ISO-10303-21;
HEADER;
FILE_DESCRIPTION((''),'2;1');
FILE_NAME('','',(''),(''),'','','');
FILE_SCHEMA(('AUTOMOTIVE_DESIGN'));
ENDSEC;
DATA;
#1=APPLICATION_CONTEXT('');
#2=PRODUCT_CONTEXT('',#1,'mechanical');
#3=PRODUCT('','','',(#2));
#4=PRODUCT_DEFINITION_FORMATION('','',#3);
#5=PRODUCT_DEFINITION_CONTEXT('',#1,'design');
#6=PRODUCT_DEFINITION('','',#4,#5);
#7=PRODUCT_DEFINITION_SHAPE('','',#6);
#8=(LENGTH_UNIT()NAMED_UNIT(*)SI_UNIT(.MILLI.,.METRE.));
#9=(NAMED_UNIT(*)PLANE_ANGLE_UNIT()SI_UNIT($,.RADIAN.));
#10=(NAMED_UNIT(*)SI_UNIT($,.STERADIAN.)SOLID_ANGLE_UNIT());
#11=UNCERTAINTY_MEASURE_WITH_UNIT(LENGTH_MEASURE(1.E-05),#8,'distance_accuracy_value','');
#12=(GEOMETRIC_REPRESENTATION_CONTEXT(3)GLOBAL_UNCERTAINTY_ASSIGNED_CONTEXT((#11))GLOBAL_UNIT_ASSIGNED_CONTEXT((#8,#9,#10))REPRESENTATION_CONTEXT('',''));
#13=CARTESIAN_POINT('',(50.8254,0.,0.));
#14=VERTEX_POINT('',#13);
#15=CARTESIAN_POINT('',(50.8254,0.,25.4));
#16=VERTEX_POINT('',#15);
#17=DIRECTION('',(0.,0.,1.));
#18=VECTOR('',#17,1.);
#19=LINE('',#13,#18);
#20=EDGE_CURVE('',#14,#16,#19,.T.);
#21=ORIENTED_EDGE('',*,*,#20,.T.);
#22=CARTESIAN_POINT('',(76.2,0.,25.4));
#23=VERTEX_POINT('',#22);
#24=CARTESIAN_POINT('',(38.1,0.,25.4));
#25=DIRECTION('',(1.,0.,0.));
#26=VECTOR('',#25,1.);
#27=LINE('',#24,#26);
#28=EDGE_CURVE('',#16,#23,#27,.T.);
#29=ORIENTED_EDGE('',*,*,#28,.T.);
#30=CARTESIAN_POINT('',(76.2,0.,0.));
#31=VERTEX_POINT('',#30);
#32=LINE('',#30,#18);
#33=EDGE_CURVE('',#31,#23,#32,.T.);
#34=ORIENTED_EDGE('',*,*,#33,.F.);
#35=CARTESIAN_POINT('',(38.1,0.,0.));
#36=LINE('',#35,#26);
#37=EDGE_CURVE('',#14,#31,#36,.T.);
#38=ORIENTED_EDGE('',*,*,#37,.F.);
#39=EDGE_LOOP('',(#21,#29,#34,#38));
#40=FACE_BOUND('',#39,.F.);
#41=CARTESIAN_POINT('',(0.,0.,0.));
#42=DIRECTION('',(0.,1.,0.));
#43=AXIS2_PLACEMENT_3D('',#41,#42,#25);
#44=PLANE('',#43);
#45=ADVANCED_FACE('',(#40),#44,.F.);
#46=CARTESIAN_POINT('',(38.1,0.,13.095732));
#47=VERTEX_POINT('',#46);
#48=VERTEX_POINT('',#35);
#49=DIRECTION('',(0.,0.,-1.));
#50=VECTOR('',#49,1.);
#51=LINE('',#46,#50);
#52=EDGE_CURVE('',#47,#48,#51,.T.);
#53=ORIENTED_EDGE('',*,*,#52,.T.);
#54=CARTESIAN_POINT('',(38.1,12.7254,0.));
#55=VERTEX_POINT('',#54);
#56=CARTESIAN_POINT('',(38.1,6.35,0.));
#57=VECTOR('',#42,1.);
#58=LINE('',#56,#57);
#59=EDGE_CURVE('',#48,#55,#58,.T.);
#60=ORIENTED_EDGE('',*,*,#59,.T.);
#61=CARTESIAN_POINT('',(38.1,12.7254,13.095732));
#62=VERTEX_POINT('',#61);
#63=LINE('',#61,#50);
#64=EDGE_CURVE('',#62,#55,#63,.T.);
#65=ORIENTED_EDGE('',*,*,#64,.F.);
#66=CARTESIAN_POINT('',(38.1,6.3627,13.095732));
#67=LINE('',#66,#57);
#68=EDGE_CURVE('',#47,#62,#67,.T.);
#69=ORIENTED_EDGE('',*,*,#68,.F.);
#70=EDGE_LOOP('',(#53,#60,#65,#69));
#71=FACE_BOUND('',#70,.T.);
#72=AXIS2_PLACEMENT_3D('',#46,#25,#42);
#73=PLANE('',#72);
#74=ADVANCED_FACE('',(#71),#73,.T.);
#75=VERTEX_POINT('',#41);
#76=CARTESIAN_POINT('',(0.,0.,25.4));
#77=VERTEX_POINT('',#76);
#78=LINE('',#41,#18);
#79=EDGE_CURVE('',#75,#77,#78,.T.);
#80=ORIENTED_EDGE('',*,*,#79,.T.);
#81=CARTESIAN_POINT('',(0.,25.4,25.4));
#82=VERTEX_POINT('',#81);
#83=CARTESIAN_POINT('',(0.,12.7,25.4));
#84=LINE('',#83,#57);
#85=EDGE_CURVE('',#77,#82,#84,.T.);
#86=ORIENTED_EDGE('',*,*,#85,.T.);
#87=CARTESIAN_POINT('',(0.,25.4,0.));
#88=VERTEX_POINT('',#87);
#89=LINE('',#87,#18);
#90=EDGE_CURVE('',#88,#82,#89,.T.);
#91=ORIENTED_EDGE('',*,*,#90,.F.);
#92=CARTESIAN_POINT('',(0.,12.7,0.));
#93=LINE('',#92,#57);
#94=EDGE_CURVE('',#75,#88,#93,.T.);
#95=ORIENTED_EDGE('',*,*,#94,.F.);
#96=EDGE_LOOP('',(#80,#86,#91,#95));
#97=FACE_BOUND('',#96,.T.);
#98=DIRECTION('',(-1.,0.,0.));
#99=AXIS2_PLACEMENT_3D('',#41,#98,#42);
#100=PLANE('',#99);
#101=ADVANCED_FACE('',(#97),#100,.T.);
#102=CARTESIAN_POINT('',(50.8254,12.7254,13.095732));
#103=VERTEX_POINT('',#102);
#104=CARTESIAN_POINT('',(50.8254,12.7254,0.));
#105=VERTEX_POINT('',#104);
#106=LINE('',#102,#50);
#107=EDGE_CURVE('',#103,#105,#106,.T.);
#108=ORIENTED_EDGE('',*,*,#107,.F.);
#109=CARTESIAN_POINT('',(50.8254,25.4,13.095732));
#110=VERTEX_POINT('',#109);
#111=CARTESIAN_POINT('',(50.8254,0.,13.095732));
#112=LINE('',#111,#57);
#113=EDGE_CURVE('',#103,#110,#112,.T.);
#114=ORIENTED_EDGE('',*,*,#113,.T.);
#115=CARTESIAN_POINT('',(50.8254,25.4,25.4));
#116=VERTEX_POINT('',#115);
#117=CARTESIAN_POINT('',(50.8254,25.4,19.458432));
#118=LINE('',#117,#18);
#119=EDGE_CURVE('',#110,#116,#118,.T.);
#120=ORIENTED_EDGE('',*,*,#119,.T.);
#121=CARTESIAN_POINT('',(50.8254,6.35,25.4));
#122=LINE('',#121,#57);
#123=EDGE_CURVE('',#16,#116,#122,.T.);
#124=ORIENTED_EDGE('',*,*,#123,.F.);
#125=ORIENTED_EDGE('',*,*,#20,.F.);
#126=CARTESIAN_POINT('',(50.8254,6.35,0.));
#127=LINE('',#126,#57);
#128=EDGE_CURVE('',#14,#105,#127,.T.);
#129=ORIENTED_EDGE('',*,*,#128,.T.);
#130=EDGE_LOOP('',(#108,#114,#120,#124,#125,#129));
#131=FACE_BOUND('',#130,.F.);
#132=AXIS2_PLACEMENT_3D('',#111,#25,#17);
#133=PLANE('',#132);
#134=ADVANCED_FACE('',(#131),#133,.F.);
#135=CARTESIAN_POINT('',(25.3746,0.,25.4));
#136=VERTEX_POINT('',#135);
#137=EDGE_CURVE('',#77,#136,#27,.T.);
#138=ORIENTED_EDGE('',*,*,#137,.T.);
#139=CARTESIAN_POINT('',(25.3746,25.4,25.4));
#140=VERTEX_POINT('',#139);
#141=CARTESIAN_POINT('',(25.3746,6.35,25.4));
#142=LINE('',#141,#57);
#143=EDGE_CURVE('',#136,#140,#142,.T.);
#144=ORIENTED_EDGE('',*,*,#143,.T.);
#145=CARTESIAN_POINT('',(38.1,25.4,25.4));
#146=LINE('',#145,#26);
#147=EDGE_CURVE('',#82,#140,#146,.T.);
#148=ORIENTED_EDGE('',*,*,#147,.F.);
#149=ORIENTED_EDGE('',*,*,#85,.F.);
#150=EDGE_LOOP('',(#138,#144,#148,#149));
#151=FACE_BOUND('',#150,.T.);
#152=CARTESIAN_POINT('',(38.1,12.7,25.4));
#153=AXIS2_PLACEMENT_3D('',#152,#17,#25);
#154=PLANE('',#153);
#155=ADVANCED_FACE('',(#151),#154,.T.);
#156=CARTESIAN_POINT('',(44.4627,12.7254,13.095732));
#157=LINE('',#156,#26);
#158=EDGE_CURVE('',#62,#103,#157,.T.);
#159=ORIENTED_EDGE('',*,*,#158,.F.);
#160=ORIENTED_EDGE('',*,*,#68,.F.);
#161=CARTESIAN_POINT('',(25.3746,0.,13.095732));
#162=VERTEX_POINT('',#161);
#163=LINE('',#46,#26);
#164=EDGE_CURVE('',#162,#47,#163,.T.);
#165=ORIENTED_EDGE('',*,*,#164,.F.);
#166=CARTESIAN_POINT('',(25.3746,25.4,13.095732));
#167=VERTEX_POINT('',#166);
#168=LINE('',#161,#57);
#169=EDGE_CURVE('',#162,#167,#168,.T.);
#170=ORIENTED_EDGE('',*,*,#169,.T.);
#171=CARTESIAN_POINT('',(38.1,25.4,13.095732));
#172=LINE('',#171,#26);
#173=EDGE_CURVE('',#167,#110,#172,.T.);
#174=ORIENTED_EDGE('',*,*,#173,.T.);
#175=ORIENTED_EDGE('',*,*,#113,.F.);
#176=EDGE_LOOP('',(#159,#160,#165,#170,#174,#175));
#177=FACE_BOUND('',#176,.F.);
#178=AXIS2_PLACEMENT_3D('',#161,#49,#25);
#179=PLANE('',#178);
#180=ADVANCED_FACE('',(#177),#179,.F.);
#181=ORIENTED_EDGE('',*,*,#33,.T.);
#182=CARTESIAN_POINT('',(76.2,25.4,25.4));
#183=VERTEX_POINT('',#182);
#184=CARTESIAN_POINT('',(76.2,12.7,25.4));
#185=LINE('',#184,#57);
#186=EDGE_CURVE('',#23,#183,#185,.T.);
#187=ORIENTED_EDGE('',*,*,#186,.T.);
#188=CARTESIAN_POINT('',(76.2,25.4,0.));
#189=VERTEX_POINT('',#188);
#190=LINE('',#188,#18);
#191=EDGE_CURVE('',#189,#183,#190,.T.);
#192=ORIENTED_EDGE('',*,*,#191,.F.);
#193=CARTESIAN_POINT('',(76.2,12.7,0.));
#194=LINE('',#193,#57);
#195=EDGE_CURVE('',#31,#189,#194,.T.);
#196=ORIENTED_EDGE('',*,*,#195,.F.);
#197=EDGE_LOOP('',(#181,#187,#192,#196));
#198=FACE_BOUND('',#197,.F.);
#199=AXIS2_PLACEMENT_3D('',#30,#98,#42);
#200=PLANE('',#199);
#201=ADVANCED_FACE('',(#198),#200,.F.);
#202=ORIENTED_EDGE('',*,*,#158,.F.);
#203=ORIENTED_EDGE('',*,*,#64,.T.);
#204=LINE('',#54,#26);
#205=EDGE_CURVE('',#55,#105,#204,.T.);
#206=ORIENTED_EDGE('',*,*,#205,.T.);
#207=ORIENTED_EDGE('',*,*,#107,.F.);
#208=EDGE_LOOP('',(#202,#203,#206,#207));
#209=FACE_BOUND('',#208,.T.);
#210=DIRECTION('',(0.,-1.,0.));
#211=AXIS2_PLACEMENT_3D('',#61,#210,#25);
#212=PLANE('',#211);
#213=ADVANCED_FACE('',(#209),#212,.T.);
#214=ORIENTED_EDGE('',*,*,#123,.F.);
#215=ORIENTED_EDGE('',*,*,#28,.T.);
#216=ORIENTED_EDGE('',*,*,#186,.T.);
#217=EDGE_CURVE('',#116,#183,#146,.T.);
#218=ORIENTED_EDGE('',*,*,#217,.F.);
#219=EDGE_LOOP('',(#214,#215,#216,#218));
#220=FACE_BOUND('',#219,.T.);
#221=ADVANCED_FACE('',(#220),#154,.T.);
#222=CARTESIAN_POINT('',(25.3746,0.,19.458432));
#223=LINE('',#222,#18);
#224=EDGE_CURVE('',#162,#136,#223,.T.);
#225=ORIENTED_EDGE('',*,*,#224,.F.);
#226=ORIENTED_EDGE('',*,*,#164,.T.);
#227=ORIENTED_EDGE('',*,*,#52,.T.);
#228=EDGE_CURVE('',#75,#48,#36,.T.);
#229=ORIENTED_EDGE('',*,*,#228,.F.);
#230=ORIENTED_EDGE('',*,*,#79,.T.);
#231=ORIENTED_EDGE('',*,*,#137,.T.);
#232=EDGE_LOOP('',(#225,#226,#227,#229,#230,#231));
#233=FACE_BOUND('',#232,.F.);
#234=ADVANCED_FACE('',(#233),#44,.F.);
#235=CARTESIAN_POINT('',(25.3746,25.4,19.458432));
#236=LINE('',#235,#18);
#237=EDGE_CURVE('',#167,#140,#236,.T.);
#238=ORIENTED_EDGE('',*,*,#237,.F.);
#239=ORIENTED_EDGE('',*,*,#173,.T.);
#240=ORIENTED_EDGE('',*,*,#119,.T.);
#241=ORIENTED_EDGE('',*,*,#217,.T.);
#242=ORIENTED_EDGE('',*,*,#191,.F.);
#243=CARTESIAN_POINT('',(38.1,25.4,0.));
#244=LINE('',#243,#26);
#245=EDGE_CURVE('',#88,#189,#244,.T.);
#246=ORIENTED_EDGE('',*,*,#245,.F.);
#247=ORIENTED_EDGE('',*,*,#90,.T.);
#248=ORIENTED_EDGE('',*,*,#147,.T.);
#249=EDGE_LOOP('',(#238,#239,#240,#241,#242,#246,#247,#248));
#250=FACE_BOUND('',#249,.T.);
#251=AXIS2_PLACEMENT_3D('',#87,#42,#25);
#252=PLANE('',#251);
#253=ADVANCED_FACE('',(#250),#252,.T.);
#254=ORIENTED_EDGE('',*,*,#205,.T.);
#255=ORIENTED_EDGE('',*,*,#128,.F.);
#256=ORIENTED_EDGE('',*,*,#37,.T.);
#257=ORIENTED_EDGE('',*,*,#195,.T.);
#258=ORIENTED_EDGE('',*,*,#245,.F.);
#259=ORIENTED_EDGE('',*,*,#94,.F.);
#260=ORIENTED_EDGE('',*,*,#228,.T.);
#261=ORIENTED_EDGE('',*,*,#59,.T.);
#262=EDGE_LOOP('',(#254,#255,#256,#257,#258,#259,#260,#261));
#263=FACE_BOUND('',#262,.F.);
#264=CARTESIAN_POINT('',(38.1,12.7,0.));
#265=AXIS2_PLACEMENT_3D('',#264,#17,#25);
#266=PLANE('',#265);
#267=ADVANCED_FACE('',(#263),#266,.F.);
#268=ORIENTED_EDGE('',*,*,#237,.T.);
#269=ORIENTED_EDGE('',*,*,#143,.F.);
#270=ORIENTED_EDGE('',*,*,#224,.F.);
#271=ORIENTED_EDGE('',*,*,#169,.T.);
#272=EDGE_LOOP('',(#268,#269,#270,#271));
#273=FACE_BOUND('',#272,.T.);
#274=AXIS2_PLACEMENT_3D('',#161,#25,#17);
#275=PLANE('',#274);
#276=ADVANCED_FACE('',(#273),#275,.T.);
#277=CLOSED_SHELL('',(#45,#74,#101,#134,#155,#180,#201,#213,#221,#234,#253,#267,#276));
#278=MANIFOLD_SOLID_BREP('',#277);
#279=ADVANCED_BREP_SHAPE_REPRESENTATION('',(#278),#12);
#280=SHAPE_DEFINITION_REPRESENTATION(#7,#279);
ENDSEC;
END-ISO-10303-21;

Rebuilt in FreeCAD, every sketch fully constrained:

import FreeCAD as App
import Part
import Sketcher
Q = App.Units.Quantity

doc = App.newDocument("Part")
body = doc.addObject("PartDesign::Body", "Body")

# Sketch on XY plane
sketch1 = doc.addObject("Sketcher::SketchObject", "Sketch")
body.addObject(sketch1)
sketch1.AttachmentSupport = (doc.XY_Plane, [""])
sketch1.MapMode = "FlatFace"
sketch1.addGeometry([
    Part.LineSegment(App.Vector(0, 25, 0), App.Vector(0, 0, 0)),
    Part.LineSegment(App.Vector(0, 0, 0), App.Vector(76, 0, 0)),
    Part.LineSegment(App.Vector(76, 0, 0), App.Vector(76, 25, 0)),
    Part.LineSegment(App.Vector(76, 25, 0), App.Vector(0, 25, 0)),
], False)
sketch1.addConstraint([
    Sketcher.Constraint("Coincident", 0, 2, 1, 1),
    Sketcher.Constraint("Coincident", 1, 2, 2, 1),
    Sketcher.Constraint("Coincident", 2, 2, 3, 1),
    Sketcher.Constraint("Coincident", 3, 2, 0, 1),
    Sketcher.Constraint("Vertical", 0),
    Sketcher.Constraint("Horizontal", 1),
    Sketcher.Constraint("Vertical", 2),
    Sketcher.Constraint("Horizontal", 3),
    Sketcher.Constraint("Coincident", 0, 2, -1, 1),
    Sketcher.Constraint("DistanceX", 1, 1, 1, 2, Q("3 in")),
    Sketcher.Constraint("DistanceY", 0, 2, 0, 1, Q("1 in")),
])
pad1 = doc.addObject("PartDesign::Pad", "Pad")
body.addObject(pad1)
pad1.Profile = sketch1
pad1.Length = Q("1 in")

# Sketch on XZ plane
sketch2 = doc.addObject("Sketcher::SketchObject", "Sketch001")
body.addObject(sketch2)
sketch2.AttachmentSupport = (doc.XZ_Plane, [""])
sketch2.MapMode = "FlatFace"
sketch2.addGeometry([
    Part.LineSegment(App.Vector(25, 26, 0), App.Vector(25, 13, 0)),
    Part.LineSegment(App.Vector(25, 13, 0), App.Vector(51, 13, 0)),
    Part.LineSegment(App.Vector(51, 13, 0), App.Vector(51, 26, 0)),
    Part.LineSegment(App.Vector(51, 26, 0), App.Vector(25, 26, 0)),
], False)
sketch2.addConstraint([
    Sketcher.Constraint("Coincident", 0, 2, 1, 1),
    Sketcher.Constraint("Coincident", 1, 2, 2, 1),
    Sketcher.Constraint("Coincident", 2, 2, 3, 1),
    Sketcher.Constraint("Coincident", 3, 2, 0, 1),
    Sketcher.Constraint("Vertical", 0),
    Sketcher.Constraint("Horizontal", 1),
    Sketcher.Constraint("Vertical", 2),
    Sketcher.Constraint("Horizontal", 3),
    Sketcher.Constraint("DistanceX", 1, 1, 1, 2, Q("1.002 in")),
    Sketcher.Constraint("DistanceY", 0, 2, 0, 1, Q("0.501 in")),
    Sketcher.Constraint("DistanceX", -1, 1, 0, 2, Q("0.999 in")),
    Sketcher.Constraint("DistanceY", -1, 1, 2, 2, Q("25.821132 mm")),
])
pocket1 = doc.addObject("PartDesign::Pocket", "Pocket")
body.addObject(pocket1)
pocket1.Profile = sketch2
pocket1.Length = Q("1 in")

# Sketch on XY plane
sketch3 = doc.addObject("Sketcher::SketchObject", "Sketch002")
body.addObject(sketch3)
sketch3.AttachmentSupport = (doc.XY_Plane, [""])
sketch3.MapMode = "FlatFace"
sketch3.AttachmentOffset = App.Placement(App.Vector(0, 0, 13.095732), App.Rotation())
sketch3.addGeometry([
    Part.LineSegment(App.Vector(38, 13, 0), App.Vector(38, 0, 0)),
    Part.LineSegment(App.Vector(38, 0, 0), App.Vector(51, 0, 0)),
    Part.LineSegment(App.Vector(51, 0, 0), App.Vector(51, 13, 0)),
    Part.LineSegment(App.Vector(51, 13, 0), App.Vector(38, 13, 0)),
], False)
sketch3.addConstraint([
    Sketcher.Constraint("Coincident", 0, 2, 1, 1),
    Sketcher.Constraint("Coincident", 1, 2, 2, 1),
    Sketcher.Constraint("Coincident", 2, 2, 3, 1),
    Sketcher.Constraint("Coincident", 3, 2, 0, 1),
    Sketcher.Constraint("Vertical", 0),
    Sketcher.Constraint("Horizontal", 1),
    Sketcher.Constraint("Vertical", 2),
    Sketcher.Constraint("Horizontal", 3),
    Sketcher.Constraint("PointOnObject", 0, 2, -1),
    Sketcher.Constraint("Equal", 3, 0),
    Sketcher.Constraint("DistanceX", -1, 1, 0, 2, Q("1.5 in")),
    Sketcher.Constraint("DistanceX", 1, 1, 1, 2, Q("0.501 in")),
])
pocket2 = doc.addObject("PartDesign::Pocket", "Pocket001")
body.addObject(pocket2)
pocket2.Profile = sketch3
pocket2.Length = Q("1 in")

doc.recompute()
